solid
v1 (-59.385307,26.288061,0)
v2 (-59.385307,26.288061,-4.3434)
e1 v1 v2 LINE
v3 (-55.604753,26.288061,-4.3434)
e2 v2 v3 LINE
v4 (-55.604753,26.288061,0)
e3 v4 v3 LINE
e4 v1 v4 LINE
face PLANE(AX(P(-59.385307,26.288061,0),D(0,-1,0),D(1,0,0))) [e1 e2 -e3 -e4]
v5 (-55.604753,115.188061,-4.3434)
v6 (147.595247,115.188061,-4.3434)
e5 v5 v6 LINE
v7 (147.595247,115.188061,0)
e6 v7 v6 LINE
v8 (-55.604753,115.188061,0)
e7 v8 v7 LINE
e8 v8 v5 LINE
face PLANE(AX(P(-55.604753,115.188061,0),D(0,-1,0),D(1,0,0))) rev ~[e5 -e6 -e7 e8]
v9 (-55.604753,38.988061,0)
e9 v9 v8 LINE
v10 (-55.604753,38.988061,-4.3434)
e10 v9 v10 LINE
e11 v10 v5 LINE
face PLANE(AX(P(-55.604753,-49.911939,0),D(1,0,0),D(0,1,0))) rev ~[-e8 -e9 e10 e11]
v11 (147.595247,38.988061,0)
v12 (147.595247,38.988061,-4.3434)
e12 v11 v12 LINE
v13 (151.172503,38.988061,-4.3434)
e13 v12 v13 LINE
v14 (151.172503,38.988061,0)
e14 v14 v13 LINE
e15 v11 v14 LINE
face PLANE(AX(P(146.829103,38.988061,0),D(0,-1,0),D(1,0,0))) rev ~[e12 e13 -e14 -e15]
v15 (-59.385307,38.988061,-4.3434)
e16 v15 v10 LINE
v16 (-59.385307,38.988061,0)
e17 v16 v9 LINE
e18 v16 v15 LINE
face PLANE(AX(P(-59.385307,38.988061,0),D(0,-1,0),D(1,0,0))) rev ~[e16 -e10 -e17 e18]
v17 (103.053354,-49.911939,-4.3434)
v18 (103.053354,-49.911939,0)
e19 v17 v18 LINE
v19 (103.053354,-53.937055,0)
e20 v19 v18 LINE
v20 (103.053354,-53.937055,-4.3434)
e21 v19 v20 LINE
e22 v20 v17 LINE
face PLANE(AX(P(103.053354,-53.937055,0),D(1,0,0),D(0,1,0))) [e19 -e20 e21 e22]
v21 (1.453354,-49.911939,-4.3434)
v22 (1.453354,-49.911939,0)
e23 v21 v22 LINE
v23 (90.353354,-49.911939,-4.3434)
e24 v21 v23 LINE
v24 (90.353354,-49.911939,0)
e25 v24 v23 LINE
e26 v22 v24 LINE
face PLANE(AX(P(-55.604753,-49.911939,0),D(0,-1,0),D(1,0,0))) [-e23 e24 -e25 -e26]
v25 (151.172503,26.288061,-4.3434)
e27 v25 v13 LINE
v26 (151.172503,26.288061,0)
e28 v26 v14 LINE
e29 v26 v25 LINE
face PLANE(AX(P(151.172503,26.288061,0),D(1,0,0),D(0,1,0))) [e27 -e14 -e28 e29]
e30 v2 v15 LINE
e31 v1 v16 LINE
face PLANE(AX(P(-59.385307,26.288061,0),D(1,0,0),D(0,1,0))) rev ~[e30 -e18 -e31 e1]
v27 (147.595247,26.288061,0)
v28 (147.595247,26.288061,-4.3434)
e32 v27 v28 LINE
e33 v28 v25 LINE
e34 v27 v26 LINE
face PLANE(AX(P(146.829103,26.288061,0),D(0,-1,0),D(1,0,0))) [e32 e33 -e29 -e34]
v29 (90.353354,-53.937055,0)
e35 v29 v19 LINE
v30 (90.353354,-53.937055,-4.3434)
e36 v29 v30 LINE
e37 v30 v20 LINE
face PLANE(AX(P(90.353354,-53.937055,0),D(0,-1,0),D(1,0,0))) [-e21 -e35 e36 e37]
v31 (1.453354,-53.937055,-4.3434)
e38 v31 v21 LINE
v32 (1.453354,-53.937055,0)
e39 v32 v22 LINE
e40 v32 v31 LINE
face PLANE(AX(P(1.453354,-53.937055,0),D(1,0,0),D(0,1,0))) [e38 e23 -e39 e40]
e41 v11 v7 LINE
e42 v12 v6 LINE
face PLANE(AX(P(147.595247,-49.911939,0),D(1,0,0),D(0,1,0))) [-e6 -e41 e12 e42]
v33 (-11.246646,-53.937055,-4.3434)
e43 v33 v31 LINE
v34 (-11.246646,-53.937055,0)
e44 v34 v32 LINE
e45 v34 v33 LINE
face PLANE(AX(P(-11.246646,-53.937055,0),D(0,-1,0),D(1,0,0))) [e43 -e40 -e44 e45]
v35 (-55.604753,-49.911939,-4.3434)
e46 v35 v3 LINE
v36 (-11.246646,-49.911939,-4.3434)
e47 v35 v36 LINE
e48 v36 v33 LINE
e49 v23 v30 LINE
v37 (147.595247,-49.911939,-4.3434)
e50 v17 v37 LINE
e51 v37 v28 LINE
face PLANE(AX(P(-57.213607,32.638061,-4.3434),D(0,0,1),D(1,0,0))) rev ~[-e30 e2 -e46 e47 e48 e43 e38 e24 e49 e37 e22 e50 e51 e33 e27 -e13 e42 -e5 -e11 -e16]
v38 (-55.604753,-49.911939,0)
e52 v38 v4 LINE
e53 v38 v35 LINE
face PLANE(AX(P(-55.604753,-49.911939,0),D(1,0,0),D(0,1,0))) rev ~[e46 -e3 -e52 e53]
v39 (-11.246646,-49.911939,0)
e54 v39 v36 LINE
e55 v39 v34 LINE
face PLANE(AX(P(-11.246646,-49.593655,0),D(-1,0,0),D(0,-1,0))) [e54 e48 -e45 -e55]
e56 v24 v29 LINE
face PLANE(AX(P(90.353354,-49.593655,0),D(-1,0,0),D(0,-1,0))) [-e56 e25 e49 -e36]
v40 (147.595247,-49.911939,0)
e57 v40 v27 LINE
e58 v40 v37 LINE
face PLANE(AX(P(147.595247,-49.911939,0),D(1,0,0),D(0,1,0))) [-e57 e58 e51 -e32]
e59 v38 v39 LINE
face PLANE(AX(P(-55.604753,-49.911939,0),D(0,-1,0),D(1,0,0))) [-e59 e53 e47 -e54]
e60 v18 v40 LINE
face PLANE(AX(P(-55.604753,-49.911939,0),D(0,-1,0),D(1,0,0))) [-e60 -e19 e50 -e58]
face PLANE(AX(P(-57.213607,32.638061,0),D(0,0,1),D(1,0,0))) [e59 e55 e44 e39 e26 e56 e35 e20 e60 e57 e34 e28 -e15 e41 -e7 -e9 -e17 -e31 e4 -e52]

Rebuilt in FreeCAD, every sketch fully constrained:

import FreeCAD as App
import Part
import Sketcher
Q = App.Units.Quantity


def add_polygon(sketch, points):
    """Adds a closed chain of lines whose ends are joined by coincident constraints."""
    first, n = sketch.GeometryCount, len(points)
    for a, b in zip(points, points[1:] + points[:1]):
        sketch.addGeometry(Part.LineSegment(App.Vector(*a, 0), App.Vector(*b, 0)), False)
    for i in range(n):
        sketch.addConstraint(Sketcher.Constraint("Coincident", first + i, 2, first + (i + 1) % n, 1))

doc = App.newDocument("Part")
params = doc.addObject("Spreadsheet::Sheet", "Params")
for row, (alias, value) in enumerate([
    ("sketch1_width", "8 in"),
    ("sketch1_height", "6.5 in"),
    ("pad1_length", "0.171 in"),
    ("sketch2_width", "0.5 in"),
    ("sketch2_height", "0.171 in"),
    ("pad2_length", "0.171 in"),
    ("sketch3_height", "0.5 in"),
    ("sketch3_width", "0.171 in"),
    ("pad3_length", "0.171 in"),
], start=1):
    params.set(f"A{row}", alias)
    params.set(f"B{row}", "=" + value)
    params.setAlias(f"B{row}", alias)

body = doc.addObject("PartDesign::Body", "Body")

sketch1 = body.newObject("Sketcher::SketchObject", "Sketch")
sketch1.AttachmentSupport = (doc.getObject("XY_Plane"), [""])
sketch1.MapMode = "FlatFace"
add_polygon(sketch1, [(-56, 115), (-56, -50), (148, -50), (148, 115)])
sketch1.addConstraint(Sketcher.Constraint("Vertical", 0))
sketch1.addConstraint(Sketcher.Constraint("Horizontal", 1))
sketch1.addConstraint(Sketcher.Constraint("Vertical", 2))
sketch1.addConstraint(Sketcher.Constraint("Horizontal", 3))
sketch1.addConstraint(Sketcher.Constraint("DistanceX", 1, 1, 1, 2, Q("8 in")))
sketch1.addConstraint(Sketcher.Constraint("DistanceY", 0, 2, 0, 1, Q("6.5 in")))
sketch1.addConstraint(Sketcher.Constraint("DistanceY", 0, 2, -1, 1, Q("49.911939 mm")))
sketch1.addConstraint(Sketcher.Constraint("DistanceX", 0, 2, -1, 1, Q("55.604753 mm")))
sketch1.setExpression("Constraints[8]", "Params.sketch1_width")
sketch1.setExpression("Constraints[9]", "Params.sketch1_height")
pad1 = body.newObject("PartDesign::Pad", "Pad")
pad1.Profile = sketch1
pad1.setExpression("Length", "Params.pad1_length")
pad1.Reversed = True

sketch2 = body.newObject("Sketcher::SketchObject", "Sketch001")
sketch2.AttachmentSupport = (doc.getObject("XY_Plane"), [""])
sketch2.MapMode = "FlatFace"
add_polygon(sketch2, [(-11.2, -49.6), (-11.2, -53.9), (1.5, -53.9), (1.5, -49.6)])
add_polygon(sketch2, [(103.1, -53.9), (103.1, -49.6), (90.4, -49.6), (90.4, -53.9)])
sketch2.addConstraint(Sketcher.Constraint("Vertical", 0))
sketch2.addConstraint(Sketcher.Constraint("Horizontal", 1))
sketch2.addConstraint(Sketcher.Constraint("Vertical", 2))
sketch2.addConstraint(Sketcher.Constraint("Horizontal", 3))
sketch2.addConstraint(Sketcher.Constraint("Vertical", 4))
sketch2.addConstraint(Sketcher.Constraint("Horizontal", 5))
sketch2.addConstraint(Sketcher.Constraint("Vertical", 6))
sketch2.addConstraint(Sketcher.Constraint("Horizontal", 7))
sketch2.addConstraint(Sketcher.Constraint("Horizontal", 3, 2, 4, 2))
sketch2.addConstraint(Sketcher.Constraint("Horizontal", 1, 2, 6, 2))
sketch2.addConstraint(Sketcher.Constraint("Equal", 3, 5))
sketch2.addConstraint(Sketcher.Constraint("DistanceX", 1, 1, 1, 2, Q("0.5 in")))
sketch2.addConstraint(Sketcher.Constraint("DistanceX", 2, 2, 4, 2, Q("4 in")))
sketch2.addConstraint(Sketcher.Constraint("DistanceY", 0, 2, 0, 1, Q("0.171 in")))
sketch2.addConstraint(Sketcher.Constraint("DistanceX", 0, 2, -1, 1, Q("11.246646 mm")))
sketch2.addConstraint(Sketcher.Constraint("DistanceY", 0, 2, -1, 1, Q("53.937055 mm")))
sketch2.setExpression("Constraints[19]", "Params.sketch2_width")
sketch2.setExpression("Constraints[21]", "Params.sketch2_height")
pad2 = body.newObject("PartDesign::Pad", "Pad001")
pad2.Profile = sketch2
pad2.setExpression("Length", "Params.pad2_length")
pad2.Reversed = True

sketch3 = body.newObject("Sketcher::SketchObject", "Sketch002")
sketch3.AttachmentSupport = (doc.getObject("XY_Plane"), [""])
sketch3.MapMode = "FlatFace"
add_polygon(sketch3, [(-59.4, 39), (-59.4, 26.3), (-55, 26.3), (-55, 39)])
add_polygon(sketch3, [(146.8, 39), (146.8, 26.3), (151.2, 26.3), (151.2, 39)])
sketch3.addConstraint(Sketcher.Constraint("Vertical", 0))
sketch3.addConstraint(Sketcher.Constraint("Horizontal", 1))
sketch3.addConstraint(Sketcher.Constraint("Vertical", 2))
sketch3.addConstraint(Sketcher.Constraint("Horizontal", 3))
sketch3.addConstraint(Sketcher.Constraint("Vertical", 4))
sketch3.addConstraint(Sketcher.Constraint("Horizontal", 5))
sketch3.addConstraint(Sketcher.Constraint("Vertical", 6))
sketch3.addConstraint(Sketcher.Constraint("Horizontal", 7))
sketch3.addConstraint(Sketcher.Constraint("Horizontal", 1, 2, 4, 2))
sketch3.addConstraint(Sketcher.Constraint("Horizontal", 3, 2, 6, 2))
sketch3.addConstraint(Sketcher.Constraint("Equal", 3, 5))
sketch3.addConstraint(Sketcher.Constraint("DistanceY", 0, 2, 0, 1, Q("0.5 in")))
sketch3.addConstraint(Sketcher.Constraint("DistanceX", 1, 1, 1, 2, Q("0.171 in")))
sketch3.addConstraint(Sketcher.Constraint("DistanceY", -1, 1, 0, 2, Q("26.288061 mm")))
sketch3.addConstraint(Sketcher.Constraint("DistanceX", 1, 2, 4, 2, Q("201.87101 mm")))
sketch3.addConstraint(Sketcher.Constraint("DistanceX", 0, 2, -1, 1, Q("59.385307 mm")))
sketch3.setExpression("Constraints[19]", "Params.sketch3_height")
sketch3.setExpression("Constraints[20]", "Params.sketch3_width")
pad3 = body.newObject("PartDesign::Pad", "Pad002")
pad3.Profile = sketch3
pad3.setExpression("Length", "Params.pad3_length")
pad3.Reversed = True

doc.recompute()
